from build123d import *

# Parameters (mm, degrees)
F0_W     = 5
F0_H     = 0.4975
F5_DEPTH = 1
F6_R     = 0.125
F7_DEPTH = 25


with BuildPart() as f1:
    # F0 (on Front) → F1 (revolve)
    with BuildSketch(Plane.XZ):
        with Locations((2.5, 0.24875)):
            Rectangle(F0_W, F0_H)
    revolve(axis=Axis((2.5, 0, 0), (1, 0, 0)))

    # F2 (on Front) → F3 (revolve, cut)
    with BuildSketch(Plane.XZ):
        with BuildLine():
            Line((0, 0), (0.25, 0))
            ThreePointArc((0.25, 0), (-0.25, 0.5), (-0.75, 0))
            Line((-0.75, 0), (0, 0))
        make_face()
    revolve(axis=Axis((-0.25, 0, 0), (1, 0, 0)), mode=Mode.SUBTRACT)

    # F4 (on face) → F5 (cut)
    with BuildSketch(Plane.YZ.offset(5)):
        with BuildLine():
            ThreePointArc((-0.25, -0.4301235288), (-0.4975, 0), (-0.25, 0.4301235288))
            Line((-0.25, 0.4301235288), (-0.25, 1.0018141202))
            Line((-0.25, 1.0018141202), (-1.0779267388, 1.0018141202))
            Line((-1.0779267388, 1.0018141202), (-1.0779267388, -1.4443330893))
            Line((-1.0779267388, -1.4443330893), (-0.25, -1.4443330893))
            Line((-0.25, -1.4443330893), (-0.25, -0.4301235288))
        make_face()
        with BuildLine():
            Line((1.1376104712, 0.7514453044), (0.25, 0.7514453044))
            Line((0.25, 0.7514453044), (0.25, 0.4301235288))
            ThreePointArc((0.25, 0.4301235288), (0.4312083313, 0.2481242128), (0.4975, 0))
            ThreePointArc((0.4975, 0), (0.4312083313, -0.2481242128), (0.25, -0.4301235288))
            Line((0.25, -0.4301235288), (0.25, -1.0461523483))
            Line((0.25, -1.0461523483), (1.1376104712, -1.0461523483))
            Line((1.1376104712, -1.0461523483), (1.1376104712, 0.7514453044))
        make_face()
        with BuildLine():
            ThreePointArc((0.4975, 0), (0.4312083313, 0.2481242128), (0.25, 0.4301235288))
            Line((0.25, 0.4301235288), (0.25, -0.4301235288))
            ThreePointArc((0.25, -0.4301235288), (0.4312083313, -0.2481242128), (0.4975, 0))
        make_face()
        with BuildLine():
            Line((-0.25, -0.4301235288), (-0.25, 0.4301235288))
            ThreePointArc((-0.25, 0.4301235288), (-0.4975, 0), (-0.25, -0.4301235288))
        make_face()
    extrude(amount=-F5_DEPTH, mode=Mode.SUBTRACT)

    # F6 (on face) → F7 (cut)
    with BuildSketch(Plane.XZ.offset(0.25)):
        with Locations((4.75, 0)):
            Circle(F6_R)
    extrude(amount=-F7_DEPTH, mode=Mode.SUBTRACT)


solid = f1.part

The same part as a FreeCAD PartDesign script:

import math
import FreeCAD as App
import Part
import Sketcher

V = App.Vector

doc = App.newDocument("Part")
body = doc.addObject("PartDesign::Body", "Body")

# Sketch on XZ plane
sketch1 = body.newObject("Sketcher::SketchObject", "Sketch")
sketch1.AttachmentSupport = (doc.getObject("XZ_Plane"), [""])
sketch1.MapMode = "FlatFace"
sketch1.addGeometry([
    Part.LineSegment(V(0, 0.5, 0), V(0, 0, 0)),
    Part.LineSegment(V(0, 0, 0), V(5, 0, 0)),
    Part.LineSegment(V(5, 0, 0), V(5, 0.5, 0)),
    Part.LineSegment(V(5, 0.5, 0), V(0, 0.5, 0)),
], False)
sketch1.addConstraint([
    Sketcher.Constraint("Coincident", 0, 2, 1, 1),
    Sketcher.Constraint("Coincident", 1, 2, 2, 1),
    Sketcher.Constraint("Coincident", 2, 2, 3, 1),
    Sketcher.Constraint("Coincident", 3, 2, 0, 1),
    Sketcher.Constraint("Vertical", 0),
    Sketcher.Constraint("Horizontal", 1),
    Sketcher.Constraint("Vertical", 2),
    Sketcher.Constraint("Horizontal", 3),
    Sketcher.Constraint("Coincident", 0, 2, -1, 1),
    Sketcher.Constraint("DistanceX", 1, 1, 1, 2, 5.0),
    Sketcher.Constraint("DistanceY", 0, 2, 0, 1, 0.4975),
])
revolution = body.newObject("PartDesign::Revolution", "Revolution")
revolution.Profile = sketch1
revolution.ReferenceAxis = (sketch1, ["H_Axis"])
revolution.Angle = 360

# Sketch on XZ plane
sketch2 = body.newObject("Sketcher::SketchObject", "Sketch001")
sketch2.AttachmentSupport = (doc.getObject("XZ_Plane"), [""])
sketch2.MapMode = "FlatFace"
sketch2.addGeometry([
    Part.ArcOfCircle(Part.Circle(V(-0.2, 0, 0), V(0, 0, 1), 0.5), math.radians(0), math.radians(180)),
    Part.LineSegment(V(-0.8, 0, 0), V(0.2, 0, 0)),
], False)
sketch2.addConstraint([
    Sketcher.Constraint("Coincident", 0, 1, 1, 2),
    Sketcher.Constraint("Coincident", 1, 1, 0, 2),
    Sketcher.Constraint("Horizontal", 1),
    Sketcher.Constraint("PointOnObject", 0, 3, -1),
    Sketcher.Constraint("PointOnObject", 0, 1, -1),
    Sketcher.Constraint("Radius", 0, 0.5),
    Sketcher.Constraint("DistanceX", 0, 3, -1, 1, 0.25),
])
groove = body.newObject("PartDesign::Groove", "Groove")
groove.Profile = sketch2
groove.ReferenceAxis = (sketch2, ["H_Axis"])
groove.Angle = 360

# Sketch on YZ plane
sketch3 = body.newObject("Sketcher::SketchObject", "Sketch002")
sketch3.AttachmentSupport = (doc.getObject("YZ_Plane"), [""])
sketch3.MapMode = "FlatFace"
sketch3.AttachmentOffset = App.Placement(V(0, 0, 5), App.Rotation())
sketch3.addGeometry([
    Part.LineSegment(V(-0.2, 1, 0), V(-1.1, 1, 0)),  # 0
    Part.LineSegment(V(-1.1, 1, 0), V(-1.1, -1.4, 0)),  # 1
    Part.LineSegment(V(-1.1, -1.4, 0), V(-0.2, -1.4, 0)),  # 2
    Part.LineSegment(V(-0.2, -1.4, 0), V(-0.2, 1, 0)),  # 3
    Part.LineSegment(V(1.1, 0.8, 0), V(0.2, 0.8, 0)),  # 4
    Part.LineSegment(V(0.2, 0.8, 0), V(0.2, -1, 0)),  # 5
    Part.LineSegment(V(0.2, -1, 0), V(1.1, -1, 0)),  # 6
    Part.LineSegment(V(1.1, -1, 0), V(1.1, 0.8, 0)),  # 7
], False)
sketch3.addConstraint([
    Sketcher.Constraint("Coincident", 0, 2, 1, 1),
    Sketcher.Constraint("Coincident", 1, 2, 2, 1),
    Sketcher.Constraint("Coincident", 2, 2, 3, 1),
    Sketcher.Constraint("Coincident", 3, 2, 0, 1),
    Sketcher.Constraint("Coincident", 4, 2, 5, 1),
    Sketcher.Constraint("Coincident", 5, 2, 6, 1),
    Sketcher.Constraint("Coincident", 6, 2, 7, 1),
    Sketcher.Constraint("Coincident", 7, 2, 4, 1),
    Sketcher.Constraint("Horizontal", 0),
    Sketcher.Constraint("Vertical", 1),
    Sketcher.Constraint("Horizontal", 2),
    Sketcher.Constraint("Vertical", 3),
    Sketcher.Constraint("Horizontal", 4),
    Sketcher.Constraint("Vertical", 5),
    Sketcher.Constraint("Horizontal", 6),
    Sketcher.Constraint("Vertical", 7),
    Sketcher.Constraint("DistanceX", 3, 2, 4, 2, 0.5),
    Sketcher.Constraint("DistanceX", 2, 2, -1, 1, 0.25),
    Sketcher.Constraint("DistanceX", 4, 2, 4, 1, 0.88761),
    Sketcher.Constraint("DistanceX", 0, 2, 0, 1, 0.827927),
    Sketcher.Constraint("DistanceY", 1, 2, 1, 1, 2.446147),
    Sketcher.Constraint("DistanceY", 5, 2, 5, 1, 1.797598),
    Sketcher.Constraint("DistanceY", 4, 2, 3, 2, 0.250369),
    Sketcher.Constraint("DistanceY", -1, 1, 0, 2, 1.001814),
])
pocket1 = body.newObject("PartDesign::Pocket", "Pocket")
pocket1.Profile = sketch3
pocket1.Length = 1

# Sketch on XZ plane
sketch4 = body.newObject("Sketcher::SketchObject", "Sketch003")
sketch4.AttachmentSupport = (doc.getObject("XZ_Plane"), [""])
sketch4.MapMode = "FlatFace"
sketch4.AttachmentOffset = App.Placement(V(0, 0, 0.25), App.Rotation())
sketch4.addGeometry(Part.Circle(V(4.75, 0, 0), V(0, 0, 1), 0.12), False)
sketch4.addConstraint([
    Sketcher.Constraint("PointOnObject", 0, 3, -1),
    Sketcher.Constraint("Diameter", 0, 0.25),
    Sketcher.Constraint("DistanceX", -1, 1, 0, 3, 4.75),
])
pocket2 = body.newObject("PartDesign::Pocket", "Pocket001")
pocket2.Profile = sketch4
pocket2.Length = 25

doc.recompute()
